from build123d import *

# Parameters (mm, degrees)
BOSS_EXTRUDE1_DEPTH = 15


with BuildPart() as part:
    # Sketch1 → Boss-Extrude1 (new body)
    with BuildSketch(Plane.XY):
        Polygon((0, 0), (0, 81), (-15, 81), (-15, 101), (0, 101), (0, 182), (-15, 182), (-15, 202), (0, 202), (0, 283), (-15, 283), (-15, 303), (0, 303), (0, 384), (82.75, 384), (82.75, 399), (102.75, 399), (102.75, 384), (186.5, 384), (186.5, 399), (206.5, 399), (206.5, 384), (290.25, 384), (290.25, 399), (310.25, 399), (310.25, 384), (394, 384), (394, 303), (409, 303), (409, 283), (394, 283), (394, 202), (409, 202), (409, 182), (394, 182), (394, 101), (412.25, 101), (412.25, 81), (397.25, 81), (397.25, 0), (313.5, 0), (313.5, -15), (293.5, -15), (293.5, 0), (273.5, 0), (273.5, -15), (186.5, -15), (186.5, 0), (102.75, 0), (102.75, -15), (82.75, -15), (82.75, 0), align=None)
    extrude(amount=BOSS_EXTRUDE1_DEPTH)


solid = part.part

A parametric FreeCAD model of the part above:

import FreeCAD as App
import Part
import Sketcher

V = App.Vector


def add_polygon(sketch, points):
    """Adds a closed chain of lines whose ends are joined by coincident constraints."""
    first, n = sketch.GeometryCount, len(points)
    for a, b in zip(points, points[1:] + points[:1]):
        sketch.addGeometry(Part.LineSegment(App.Vector(*a, 0), App.Vector(*b, 0)), False)
    for i in range(n):
        sketch.addConstraint(Sketcher.Constraint("Coincident", first + i, 2, first + (i + 1) % n, 1))

doc = App.newDocument("Part")
body = doc.addObject("PartDesign::Body", "Body")

# Sketch on XY plane
sketch1 = body.newObject("Sketcher::SketchObject", "Sketch")
sketch1.AttachmentSupport = (doc.getObject("XY_Plane"), [""])
sketch1.MapMode = "FlatFace"
add_polygon(sketch1, [(0, 81), (0, 0), (83, 0), (83, -15), (103, -15), (103, 0), (186, 0), (186, -15), (274, -15), (274, 0), (294, 0), (294, -15), (314, -15), (314, 0), (397, 0), (397, 81), (412, 81), (412, 101), (394, 101), (394, 182), (409, 182), (409, 202), (394, 202), (394, 283), (409, 283), (409, 303), (394, 303), (394, 384), (310, 384), (310, 399), (290, 399), (290, 384), (206, 384), (206, 399), (186, 399), (186, 384), (103, 384), (103, 399), (83, 399), (83, 384), (0, 384), (0, 303), (-15, 303), (-15, 283), (0, 283), (0, 202), (-15, 202), (-15, 182), (0, 182), (0, 101), (-15, 101), (-15, 81)])  # lines 0-51
sketch1.addConstraint(Sketcher.Constraint("Vertical", 0))
sketch1.addConstraint(Sketcher.Constraint("Horizontal", 1))
sketch1.addConstraint(Sketcher.Constraint("Vertical", 2))
sketch1.addConstraint(Sketcher.Constraint("Horizontal", 3))
sketch1.addConstraint(Sketcher.Constraint("Vertical", 4))
sketch1.addConstraint(Sketcher.Constraint("Horizontal", 5))
sketch1.addConstraint(Sketcher.Constraint("Vertical", 6))
sketch1.addConstraint(Sketcher.Constraint("Horizontal", 7))
sketch1.addConstraint(Sketcher.Constraint("Vertical", 8))
sketch1.addConstraint(Sketcher.Constraint("Horizontal", 9))
sketch1.addConstraint(Sketcher.Constraint("Vertical", 10))
sketch1.addConstraint(Sketcher.Constraint("Horizontal", 11))
sketch1.addConstraint(Sketcher.Constraint("Vertical", 12))
sketch1.addConstraint(Sketcher.Constraint("Horizontal", 13))
sketch1.addConstraint(Sketcher.Constraint("Vertical", 14))
sketch1.addConstraint(Sketcher.Constraint("Horizontal", 15))
sketch1.addConstraint(Sketcher.Constraint("Vertical", 16))
sketch1.addConstraint(Sketcher.Constraint("Horizontal", 17))
sketch1.addConstraint(Sketcher.Constraint("Vertical", 18))
sketch1.addConstraint(Sketcher.Constraint("Horizontal", 19))
sketch1.addConstraint(Sketcher.Constraint("Vertical", 20))
sketch1.addConstraint(Sketcher.Constraint("Horizontal", 21))
sketch1.addConstraint(Sketcher.Constraint("Vertical", 22))
sketch1.addConstraint(Sketcher.Constraint("Horizontal", 23))
sketch1.addConstraint(Sketcher.Constraint("Vertical", 24))
sketch1.addConstraint(Sketcher.Constraint("Horizontal", 25))
sketch1.addConstraint(Sketcher.Constraint("Vertical", 26))
sketch1.addConstraint(Sketcher.Constraint("Horizontal", 27))
sketch1.addConstraint(Sketcher.Constraint("Vertical", 28))
sketch1.addConstraint(Sketcher.Constraint("Horizontal", 29))
sketch1.addConstraint(Sketcher.Constraint("Vertical", 30))
sketch1.addConstraint(Sketcher.Constraint("Horizontal", 31))
sketch1.addConstraint(Sketcher.Constraint("Vertical", 32))
sketch1.addConstraint(Sketcher.Constraint("Horizontal", 33))
sketch1.addConstraint(Sketcher.Constraint("Vertical", 34))
sketch1.addConstraint(Sketcher.Constraint("Horizontal", 35))
sketch1.addConstraint(Sketcher.Constraint("Vertical", 36))
sketch1.addConstraint(Sketcher.Constraint("Horizontal", 37))
sketch1.addConstraint(Sketcher.Constraint("Vertical", 38))
sketch1.addConstraint(Sketcher.Constraint("Horizontal", 39))
sketch1.addConstraint(Sketcher.Constraint("Vertical", 40))
sketch1.addConstraint(Sketcher.Constraint("Horizontal", 41))
sketch1.addConstraint(Sketcher.Constraint("Vertical", 42))
sketch1.addConstraint(Sketcher.Constraint("Horizontal", 43))
sketch1.addConstraint(Sketcher.Constraint("Vertical", 44))
sketch1.addConstraint(Sketcher.Constraint("Horizontal", 45))
sketch1.addConstraint(Sketcher.Constraint("Vertical", 46))
sketch1.addConstraint(Sketcher.Constraint("Horizontal", 47))
sketch1.addConstraint(Sketcher.Constraint("Vertical", 48))
sketch1.addConstraint(Sketcher.Constraint("Horizontal", 49))
sketch1.addConstraint(Sketcher.Constraint("Vertical", 50))
sketch1.addConstraint(Sketcher.Constraint("Horizontal", 51))
sketch1.addConstraint(Sketcher.Constraint("Coincident", 0, 2, -1, 1))
sketch1.addConstraint(Sketcher.Constraint("PointOnObject", 4, 2, -1))
sketch1.addConstraint(Sketcher.Constraint("PointOnObject", 8, 2, -1))
sketch1.addConstraint(Sketcher.Constraint("PointOnObject", 12, 2, -1))
sketch1.addConstraint(Sketcher.Constraint("PointOnObject", 39, 2, -2))
sketch1.addConstraint(Sketcher.Constraint("PointOnObject", 43, 2, -2))
sketch1.addConstraint(Sketcher.Constraint("PointOnObject", 47, 2, -2))
sketch1.addConstraint(Sketcher.Constraint("Horizontal", 3, 2, 6, 2))
sketch1.addConstraint(Sketcher.Constraint("Horizontal", 7, 2, 10, 2))
sketch1.addConstraint(Sketcher.Constraint("Horizontal", 27, 2, 30, 2))
sketch1.addConstraint(Sketcher.Constraint("Horizontal", 29, 2, 32, 2))
sketch1.addConstraint(Sketcher.Constraint("Horizontal", 31, 2, 34, 2))
sketch1.addConstraint(Sketcher.Constraint("Horizontal", 33, 2, 36, 2))
sketch1.addConstraint(Sketcher.Constraint("Horizontal", 35, 2, 38, 2))
sketch1.addConstraint(Sketcher.Constraint("Horizontal", 25, 2, 40, 2))
sketch1.addConstraint(Sketcher.Constraint("Horizontal", 23, 2, 42, 2))
sketch1.addConstraint(Sketcher.Constraint("Horizontal", 21, 2, 44, 2))
sketch1.addConstraint(Sketcher.Constraint("Horizontal", 19, 2, 46, 2))
sketch1.addConstraint(Sketcher.Constraint("Horizontal", 17, 2, 48, 2))
sketch1.addConstraint(Sketcher.Constraint("Horizontal", 15, 2, 50, 2))
sketch1.addConstraint(Sketcher.Constraint("Vertical", 18, 2, 21, 2))
sketch1.addConstraint(Sketcher.Constraint("Vertical", 20, 2, 23, 2))
sketch1.addConstraint(Sketcher.Constraint("Vertical", 22, 2, 25, 2))
sketch1.addConstraint(Sketcher.Constraint("Vertical", 6, 2, 33, 2))
sketch1.addConstraint(Sketcher.Constraint("Vertical", 4, 2, 35, 2))
sketch1.addConstraint(Sketcher.Constraint("Vertical", 2, 2, 37, 2))
sketch1.addConstraint(Sketcher.Constraint("Vertical", 42, 2, 45, 2))
sketch1.addConstraint(Sketcher.Constraint("Vertical", 46, 2, 49, 2))
sketch1.addConstraint(Sketcher.Constraint("Equal", 3, 9))
sketch1.addConstraint(Sketcher.Constraint("Equal", 9, 11))
sketch1.addConstraint(Sketcher.Constraint("Equal", 5, 13))
sketch1.addConstraint(Sketcher.Constraint("Equal", 15, 19))
sketch1.addConstraint(Sketcher.Constraint("Equal", 13, 27))
sketch1.addConstraint(Sketcher.Constraint("Equal", 11, 29))
sketch1.addConstraint(Sketcher.Constraint("Equal", 27, 31))
sketch1.addConstraint(Sketcher.Constraint("Equal", 29, 33))
sketch1.addConstraint(Sketcher.Constraint("Equal", 25, 41))
sketch1.addConstraint(Sketcher.Constraint("Equal", 51, 2))
sketch1.addConstraint(Sketcher.Constraint("Equal", 37, 16))
sketch1.addConstraint(Sketcher.Constraint("Equal", 14, 18))
sketch1.addConstraint(Sketcher.Constraint("Equal", 16, 20))
sketch1.addConstraint(Sketcher.Constraint("Equal", 18, 22))
sketch1.addConstraint(Sketcher.Constraint("Equal", 20, 24))
sketch1.addConstraint(Sketcher.Constraint("Equal", 22, 26))
sketch1.addConstraint(Sketcher.Constraint("Equal", 12, 28))
sketch1.addConstraint(Sketcher.Constraint("DistanceX", 3, 1, 3, 2, 20.0))
sketch1.addConstraint(Sketcher.Constraint("DistanceX", 7, 1, 7, 2, 87.0))
sketch1.addConstraint(Sketcher.Constraint("DistanceX", 15, 1, 15, 2, 15.0))
sketch1.addConstraint(Sketcher.Constraint("DistanceY", 0, 2, 0, 1, 81.0))
sketch1.addConstraint(Sketcher.Constraint("DistanceX", -1, 1, 17, 2, 394.0))
sketch1.addConstraint(Sketcher.Constraint("DistanceX", 1, 1, 1, 2, 82.75))
pad1 = body.newObject("PartDesign::Pad", "Pad")
pad1.Profile = sketch1
pad1.Length = 15

doc.recompute()
